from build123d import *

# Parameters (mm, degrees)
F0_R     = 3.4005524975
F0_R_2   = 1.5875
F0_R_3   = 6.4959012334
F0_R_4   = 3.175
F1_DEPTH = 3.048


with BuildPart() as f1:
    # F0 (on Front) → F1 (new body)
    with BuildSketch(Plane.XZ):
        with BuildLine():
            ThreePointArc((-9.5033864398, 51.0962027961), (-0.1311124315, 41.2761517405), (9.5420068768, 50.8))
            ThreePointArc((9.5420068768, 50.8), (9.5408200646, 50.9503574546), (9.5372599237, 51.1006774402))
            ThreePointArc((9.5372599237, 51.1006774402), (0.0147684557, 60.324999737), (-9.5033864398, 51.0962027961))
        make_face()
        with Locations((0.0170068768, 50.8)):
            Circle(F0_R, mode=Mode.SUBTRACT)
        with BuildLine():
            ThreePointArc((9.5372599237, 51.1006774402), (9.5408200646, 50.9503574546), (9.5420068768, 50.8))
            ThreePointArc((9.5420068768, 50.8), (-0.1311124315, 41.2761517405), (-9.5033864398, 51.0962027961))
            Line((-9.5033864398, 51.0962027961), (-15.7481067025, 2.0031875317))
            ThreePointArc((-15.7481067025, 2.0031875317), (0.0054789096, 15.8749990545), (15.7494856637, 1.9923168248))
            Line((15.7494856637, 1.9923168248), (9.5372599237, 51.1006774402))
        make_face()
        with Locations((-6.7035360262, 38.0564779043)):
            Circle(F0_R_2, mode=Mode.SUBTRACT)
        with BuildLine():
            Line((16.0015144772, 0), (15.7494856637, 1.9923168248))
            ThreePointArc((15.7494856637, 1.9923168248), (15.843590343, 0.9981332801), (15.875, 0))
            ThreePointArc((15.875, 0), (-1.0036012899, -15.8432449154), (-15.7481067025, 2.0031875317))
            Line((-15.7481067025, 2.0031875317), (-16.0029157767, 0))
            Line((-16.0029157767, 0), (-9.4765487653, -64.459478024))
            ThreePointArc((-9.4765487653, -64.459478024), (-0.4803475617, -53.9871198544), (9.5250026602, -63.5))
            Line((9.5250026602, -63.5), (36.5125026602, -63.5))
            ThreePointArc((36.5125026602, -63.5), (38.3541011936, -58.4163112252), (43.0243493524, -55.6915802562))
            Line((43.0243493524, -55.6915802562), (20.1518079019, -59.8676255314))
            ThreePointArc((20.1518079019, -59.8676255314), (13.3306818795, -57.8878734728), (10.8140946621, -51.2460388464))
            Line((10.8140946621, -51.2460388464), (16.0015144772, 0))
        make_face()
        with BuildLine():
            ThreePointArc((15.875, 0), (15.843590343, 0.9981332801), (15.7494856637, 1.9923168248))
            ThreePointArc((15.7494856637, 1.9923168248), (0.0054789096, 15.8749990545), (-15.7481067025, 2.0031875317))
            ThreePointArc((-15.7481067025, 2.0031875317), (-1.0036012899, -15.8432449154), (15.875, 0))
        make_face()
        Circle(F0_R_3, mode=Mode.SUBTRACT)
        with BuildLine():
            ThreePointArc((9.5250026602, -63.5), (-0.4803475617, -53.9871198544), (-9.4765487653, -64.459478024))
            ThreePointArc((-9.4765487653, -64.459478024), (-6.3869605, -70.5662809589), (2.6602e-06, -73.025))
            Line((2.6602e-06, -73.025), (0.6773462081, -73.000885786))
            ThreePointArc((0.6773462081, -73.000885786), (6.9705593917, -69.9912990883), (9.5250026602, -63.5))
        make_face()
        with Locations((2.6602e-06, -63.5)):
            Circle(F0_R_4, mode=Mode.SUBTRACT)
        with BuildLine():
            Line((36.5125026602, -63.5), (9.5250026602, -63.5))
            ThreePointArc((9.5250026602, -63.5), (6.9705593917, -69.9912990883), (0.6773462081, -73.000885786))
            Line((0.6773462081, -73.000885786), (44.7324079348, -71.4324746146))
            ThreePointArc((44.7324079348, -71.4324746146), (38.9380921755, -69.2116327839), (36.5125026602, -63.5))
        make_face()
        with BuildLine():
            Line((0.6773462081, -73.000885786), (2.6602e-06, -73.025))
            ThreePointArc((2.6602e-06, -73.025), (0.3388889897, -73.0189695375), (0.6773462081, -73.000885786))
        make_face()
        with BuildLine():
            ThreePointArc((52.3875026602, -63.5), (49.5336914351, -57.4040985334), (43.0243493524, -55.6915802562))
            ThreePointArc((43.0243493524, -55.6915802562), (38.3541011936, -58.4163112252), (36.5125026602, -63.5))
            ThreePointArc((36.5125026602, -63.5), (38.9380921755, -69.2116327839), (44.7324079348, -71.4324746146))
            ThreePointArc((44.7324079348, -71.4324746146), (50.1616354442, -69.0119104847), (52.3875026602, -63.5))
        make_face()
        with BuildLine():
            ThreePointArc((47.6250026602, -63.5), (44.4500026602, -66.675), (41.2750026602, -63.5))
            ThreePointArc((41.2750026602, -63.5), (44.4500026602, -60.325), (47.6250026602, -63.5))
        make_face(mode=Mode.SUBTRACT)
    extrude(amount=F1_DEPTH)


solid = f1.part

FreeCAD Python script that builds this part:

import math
import FreeCAD as App
import Part
import Sketcher

V = App.Vector
Q = App.Units.Quantity

doc = App.newDocument("Part")
body = doc.addObject("PartDesign::Body", "Body")

# Sketch on XZ plane
sketch1 = doc.addObject("Sketcher::SketchObject", "Sketch")
body.addObject(sketch1)
sketch1.AttachmentSupport = (doc.XZ_Plane, [""])
sketch1.MapMode = "FlatFace"
sketch1.addGeometry([
    Part.ArcOfCircle(Part.Circle(V(0.017007, 50.8, 0), V(0, 0, 1), 9.525), math.radians(1.808967), math.radians(178.217963)),  # 0
    Part.LineSegment(V(-9.503386, 51.096203, 0), V(-16.002916, 0, 0)),  # 1
    Part.LineSegment(V(-16.002916, 0, 0), V(-9.476549, -64.459478, 0)),  # 2
    Part.ArcOfCircle(Part.Circle(V(0.000003, -63.5, 0), V(0, 0, 1), 9.525), math.radians(-174.218642), math.radians(-90)),  # 3
    Part.ArcOfCircle(Part.Circle(V(0.000003, -63.5, 0), V(0, 0, 1), 9.525), math.radians(-90), math.radians(-85.92213)),  # 4
    Part.LineSegment(V(0.677346, -73.000886, 0), V(44.732408, -71.432475, 0)),  # 5
    Part.ArcOfCircle(Part.Circle(V(44.450003, -63.5, 0), V(0, 0, 1), 7.9375), math.radians(-87.961065), math.radians(0)),  # 6
    Part.ArcOfCircle(Part.Circle(V(44.450003, -63.5, 0), V(0, 0, 1), 7.9375), math.radians(0), math.radians(100.347036)),  # 7
    Part.LineSegment(V(43.024349, -55.69158, 0), V(20.151808, -59.867626, 0)),  # 8
    Part.ArcOfCircle(Part.Circle(V(18.723874, -52.046712, 0), V(0, 0, 1), 7.9502), math.radians(174.219879), math.radians(280.347036)),  # 9
    Part.LineSegment(V(10.814095, -51.246039, 0), V(16.001514, 0, 0)),  # 10
    Part.LineSegment(V(16.001514, 0, 0), V(15.749486, 1.992317, 0)),  # 11
    Part.LineSegment(V(15.749486, 1.992317, 0), V(9.53726, 51.100677, 0)),  # 12
    Part.Circle(V(0.000003, -63.5, 0), V(0, 0, 1), 3.175),  # 13
    Part.Circle(V(44.450003, -63.5, 0), V(0, 0, 1), 3.175),  # 14
    Part.Circle(V(0, 0, 0), V(0, 0, 1), 6.495901),  # 15
    Part.Circle(V(-6.703536, 38.056478, 0), V(0, 0, 1), 1.5875),  # 16
    Part.Circle(V(0.017007, 50.8, 0), V(0, 0, 1), 3.400552),  # 17
], False)
sketch1.addConstraint([
    Sketcher.Constraint("Coincident", 0, 2, 1, 1),
    Sketcher.Constraint("Coincident", 1, 2, 2, 1),
    Sketcher.Constraint("Coincident", 2, 2, 3, 1),
    Sketcher.Constraint("Coincident", 3, 2, 4, 1),
    Sketcher.Constraint("Coincident", 4, 2, 5, 1),
    Sketcher.Constraint("Coincident", 5, 2, 6, 1),
    Sketcher.Constraint("Coincident", 6, 2, 7, 1),
    Sketcher.Constraint("Coincident", 7, 2, 8, 1),
    Sketcher.Constraint("Coincident", 8, 2, 9, 2),
    Sketcher.Constraint("Coincident", 9, 1, 10, 1),
    Sketcher.Constraint("Coincident", 10, 2, 11, 1),
    Sketcher.Constraint("Coincident", 11, 2, 12, 1),
    Sketcher.Constraint("Coincident", 12, 2, 0, 1),
    Sketcher.Constraint("Coincident", 15, 3, -1, 1),
    Sketcher.Constraint("Coincident", 4, 3, 3, 3),
    Sketcher.Constraint("Coincident", 7, 3, 6, 3),
    Sketcher.Constraint("Coincident", 13, 3, 3, 3),
    Sketcher.Constraint("Coincident", 14, 3, 6, 3),
    Sketcher.Constraint("Coincident", 17, 3, 0, 3),
    Sketcher.Constraint("PointOnObject", 1, 2, -1),
    Sketcher.Constraint("PointOnObject", 10, 2, -1),
    Sketcher.Constraint("Diameter", 13, Q("0.25 in")),
    Sketcher.Constraint("Diameter", 14, Q("0.25 in")),
    Sketcher.Constraint("Diameter", 16, Q("0.125 in")),
    Sketcher.Constraint("DistanceY", -1, 1, 0, 3, Q("2 in")),
    Sketcher.Constraint("Radius", 0, Q("0.375 in")),
    Sketcher.Constraint("Radius", 3, Q("0.375 in")),
    Sketcher.Constraint("Radius", 6, Q("0.3125 in")),
    Sketcher.Constraint("Radius", 9, Q("0.313 in")),
    Sketcher.Constraint("DistanceY", 3, 3, -1, 1, Q("2.5 in")),
    Sketcher.Constraint("DistanceY", 6, 3, -1, 1, Q("2.5 in")),
    Sketcher.Constraint("DistanceY", 6, 2, -1, 1, Q("2.5 in")),
    Sketcher.Constraint("DistanceX", -1, 1, 6, 3, Q("1.7500001 in")),
    Sketcher.Constraint("DistanceX", 3, 3, 6, 3, Q("1.75 in")),
    Sketcher.Constraint("Diameter", 15, Q("12.991802 mm")),
    Sketcher.Constraint("Diameter", 17, Q("6.801105 mm")),
    Sketcher.Constraint("DistanceY", 11, 2, 12, 2, Q("1.9334 in")),
    Sketcher.Constraint("DistanceX", 1, 2, 11, 2, Q("31.752401 mm")),
    Sketcher.Constraint("DistanceY", 16, 3, 12, 2, Q("13.0442 mm")),
    Sketcher.Constraint("Distance", 1, Q("51.50792 mm")),
    Sketcher.Constraint("Distance", 5, Q("44.082972 mm")),
    Sketcher.Constraint("Distance", 10, Q("51.50792 mm")),
    Sketcher.Constraint("DistanceX", 2, 2, -1, 1, Q("9.476549 mm")),
    Sketcher.Constraint("DistanceX", -1, 1, 7, 2, Q("43.024349 mm")),
    Sketcher.Constraint("DistanceY", 9, 1, -1, 1, Q("51.246039 mm")),
    Sketcher.Constraint("DistanceX", -1, 1, 12, 2, Q("9.53726 mm")),
    Sketcher.Constraint("DistanceX", 4, 3, 9, 3, Q("18.723871 mm")),
    Sketcher.Constraint("DistanceX", 16, 3, 9, 3, Q("25.42741 mm")),
    Sketcher.Constraint("DistanceY", 9, 3, 16, 3, Q("90.10319 mm")),
    Sketcher.Constraint("DistanceX", 0, 2, 16, 3, Q("2.79985 mm")),
    Sketcher.Constraint("DistanceX", 1, 2, 16, 3, Q("9.29938 mm")),
    Sketcher.Constraint("DistanceX", 2, 2, 3, 2, Q("9.476551 mm")),
    Sketcher.Constraint("DistanceY", 4, 2, 5, 2, Q("1.568411 mm")),
    Sketcher.Constraint("DistanceX", 8, 2, 7, 2, Q("22.872541 mm")),
])
pad1 = doc.addObject("PartDesign::Pad", "Pad")
body.addObject(pad1)
pad1.Profile = sketch1
pad1.Length = Q("0.12 in")

doc.recompute()
